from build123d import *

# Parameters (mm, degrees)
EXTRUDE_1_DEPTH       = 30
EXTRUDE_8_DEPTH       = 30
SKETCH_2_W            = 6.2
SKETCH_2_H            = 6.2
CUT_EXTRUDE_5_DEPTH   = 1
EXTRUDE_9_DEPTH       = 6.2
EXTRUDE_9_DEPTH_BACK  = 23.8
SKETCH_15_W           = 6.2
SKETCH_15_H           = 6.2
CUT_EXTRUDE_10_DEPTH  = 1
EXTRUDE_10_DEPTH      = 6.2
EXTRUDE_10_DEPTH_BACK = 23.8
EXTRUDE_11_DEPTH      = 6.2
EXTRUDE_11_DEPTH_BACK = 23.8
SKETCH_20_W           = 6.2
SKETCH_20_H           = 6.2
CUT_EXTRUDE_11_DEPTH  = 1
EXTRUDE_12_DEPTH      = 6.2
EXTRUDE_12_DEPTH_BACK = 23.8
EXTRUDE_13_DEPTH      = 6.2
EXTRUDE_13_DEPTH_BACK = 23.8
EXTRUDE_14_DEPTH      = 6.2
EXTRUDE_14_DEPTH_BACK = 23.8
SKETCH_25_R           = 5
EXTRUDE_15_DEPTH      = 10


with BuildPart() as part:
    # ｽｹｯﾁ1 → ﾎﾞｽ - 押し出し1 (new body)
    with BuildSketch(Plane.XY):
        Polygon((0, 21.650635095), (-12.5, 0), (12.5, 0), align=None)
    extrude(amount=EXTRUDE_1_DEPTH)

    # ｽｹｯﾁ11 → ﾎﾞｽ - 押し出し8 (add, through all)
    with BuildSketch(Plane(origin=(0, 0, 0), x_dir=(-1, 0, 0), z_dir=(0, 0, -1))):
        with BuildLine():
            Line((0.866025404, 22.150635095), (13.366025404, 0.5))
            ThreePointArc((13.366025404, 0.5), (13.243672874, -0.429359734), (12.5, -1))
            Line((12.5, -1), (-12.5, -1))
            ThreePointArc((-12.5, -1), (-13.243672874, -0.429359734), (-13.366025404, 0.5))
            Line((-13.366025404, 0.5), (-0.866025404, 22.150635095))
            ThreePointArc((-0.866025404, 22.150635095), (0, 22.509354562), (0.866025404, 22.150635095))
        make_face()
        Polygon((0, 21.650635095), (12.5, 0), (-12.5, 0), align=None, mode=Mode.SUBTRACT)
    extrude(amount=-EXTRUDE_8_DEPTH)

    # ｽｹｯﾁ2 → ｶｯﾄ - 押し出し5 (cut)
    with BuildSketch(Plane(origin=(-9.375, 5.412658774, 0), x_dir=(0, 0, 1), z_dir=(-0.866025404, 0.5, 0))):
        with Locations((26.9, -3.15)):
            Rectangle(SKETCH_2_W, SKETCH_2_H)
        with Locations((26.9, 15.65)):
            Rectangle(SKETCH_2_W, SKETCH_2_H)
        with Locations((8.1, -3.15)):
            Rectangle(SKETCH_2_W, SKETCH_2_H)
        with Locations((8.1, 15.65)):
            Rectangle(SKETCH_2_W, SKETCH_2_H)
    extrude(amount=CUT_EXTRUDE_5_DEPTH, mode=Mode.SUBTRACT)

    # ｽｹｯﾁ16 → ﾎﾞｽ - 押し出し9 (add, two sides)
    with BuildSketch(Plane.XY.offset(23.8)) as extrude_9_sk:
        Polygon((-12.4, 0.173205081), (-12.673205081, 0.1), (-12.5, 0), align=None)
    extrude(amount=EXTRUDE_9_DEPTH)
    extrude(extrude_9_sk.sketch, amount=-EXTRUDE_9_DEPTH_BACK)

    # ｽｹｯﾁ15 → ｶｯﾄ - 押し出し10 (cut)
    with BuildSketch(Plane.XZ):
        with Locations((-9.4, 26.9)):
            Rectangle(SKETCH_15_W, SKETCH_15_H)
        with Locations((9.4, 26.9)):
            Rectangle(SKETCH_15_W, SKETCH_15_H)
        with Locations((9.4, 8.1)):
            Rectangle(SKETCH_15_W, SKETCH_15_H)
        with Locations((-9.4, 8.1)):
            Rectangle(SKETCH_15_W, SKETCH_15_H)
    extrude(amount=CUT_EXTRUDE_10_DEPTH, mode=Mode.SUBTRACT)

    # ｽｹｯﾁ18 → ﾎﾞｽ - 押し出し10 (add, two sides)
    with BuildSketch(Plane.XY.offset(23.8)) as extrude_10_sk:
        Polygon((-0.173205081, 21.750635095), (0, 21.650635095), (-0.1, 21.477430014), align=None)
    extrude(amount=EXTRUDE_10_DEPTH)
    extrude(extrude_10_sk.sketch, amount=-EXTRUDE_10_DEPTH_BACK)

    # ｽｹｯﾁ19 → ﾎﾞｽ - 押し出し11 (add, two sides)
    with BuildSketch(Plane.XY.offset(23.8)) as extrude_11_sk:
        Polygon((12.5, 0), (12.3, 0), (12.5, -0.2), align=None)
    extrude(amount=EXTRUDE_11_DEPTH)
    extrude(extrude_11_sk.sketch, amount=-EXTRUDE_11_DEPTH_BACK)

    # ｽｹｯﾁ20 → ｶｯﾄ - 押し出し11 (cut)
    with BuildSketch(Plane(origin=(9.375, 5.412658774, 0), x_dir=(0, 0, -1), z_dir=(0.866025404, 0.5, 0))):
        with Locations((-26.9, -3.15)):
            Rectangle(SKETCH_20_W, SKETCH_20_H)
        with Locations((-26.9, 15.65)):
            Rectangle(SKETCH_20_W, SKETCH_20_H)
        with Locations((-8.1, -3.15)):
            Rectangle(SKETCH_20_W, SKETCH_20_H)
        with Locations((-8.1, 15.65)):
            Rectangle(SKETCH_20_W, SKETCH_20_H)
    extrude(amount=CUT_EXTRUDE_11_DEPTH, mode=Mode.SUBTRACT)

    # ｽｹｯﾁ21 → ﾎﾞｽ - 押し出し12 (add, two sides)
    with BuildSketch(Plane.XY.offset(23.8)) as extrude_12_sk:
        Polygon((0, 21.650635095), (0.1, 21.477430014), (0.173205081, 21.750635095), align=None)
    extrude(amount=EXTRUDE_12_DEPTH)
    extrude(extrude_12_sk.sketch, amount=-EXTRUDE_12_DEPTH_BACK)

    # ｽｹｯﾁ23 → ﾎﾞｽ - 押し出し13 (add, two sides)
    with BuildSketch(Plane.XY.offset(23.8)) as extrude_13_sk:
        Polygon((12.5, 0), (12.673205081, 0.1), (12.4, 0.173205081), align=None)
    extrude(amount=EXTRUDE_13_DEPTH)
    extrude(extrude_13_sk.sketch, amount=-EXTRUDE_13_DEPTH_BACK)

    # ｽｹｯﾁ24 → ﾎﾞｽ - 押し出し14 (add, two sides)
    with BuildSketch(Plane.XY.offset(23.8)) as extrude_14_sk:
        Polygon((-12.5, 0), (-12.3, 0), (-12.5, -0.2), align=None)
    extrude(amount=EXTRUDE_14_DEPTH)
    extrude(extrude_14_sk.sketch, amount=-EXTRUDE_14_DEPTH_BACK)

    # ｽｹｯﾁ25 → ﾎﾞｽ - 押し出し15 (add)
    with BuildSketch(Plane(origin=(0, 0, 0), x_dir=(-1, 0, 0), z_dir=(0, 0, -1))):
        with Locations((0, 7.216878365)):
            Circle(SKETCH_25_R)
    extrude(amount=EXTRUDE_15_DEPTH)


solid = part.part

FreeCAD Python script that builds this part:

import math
import FreeCAD as App
import Part
import Sketcher
from FreeCAD import Vector
Q = App.Units.Quantity


def add_polygon(sketch, points):
    """Adds a closed chain of lines whose ends are joined by coincident constraints."""
    first, n = sketch.GeometryCount, len(points)
    for a, b in zip(points, points[1:] + points[:1]):
        sketch.addGeometry(Part.LineSegment(App.Vector(*a, 0), App.Vector(*b, 0)), False)
    for i in range(n):
        sketch.addConstraint(Sketcher.Constraint("Coincident", first + i, 2, first + (i + 1) % n, 1))

doc = App.newDocument("Part")
body = doc.addObject("PartDesign::Body", "Body")

# Sketch on XY plane
sketch1 = body.newObject("Sketcher::SketchObject", "Sketch")
sketch1.AttachmentSupport = (doc.getObject("XY_Plane"), [""])
sketch1.MapMode = "FlatFace"
add_polygon(sketch1, [(0, 22), (-12, 0), (12, 0)])  # lines 0-2
sketch1.addConstraint([
    Sketcher.Constraint("Horizontal", 1),
    Sketcher.Constraint("Symmetric", 0, 2, 1, 2, -1, 1),
    Sketcher.Constraint("PointOnObject", 2, 2, -2),
    Sketcher.Constraint("DistanceX", 1, 1, 1, 2, Q("25 mm")),
    Sketcher.Constraint("Angle", 0, Q("-120 deg")),
])
pad1 = body.newObject("PartDesign::Pad", "Pad")
pad1.Profile = sketch1
pad1.Length = 30

# Sketch on XY plane
sketch2 = body.newObject("Sketcher::SketchObject", "Sketch001")
sketch2.AttachmentSupport = (doc.getObject("XY_Plane"), [""])
sketch2.MapMode = "FlatFace"
sketch2.addGeometry(Part.LineSegment(Vector(-13.4, 0.5, 0), Vector(-0.9, 22.2, 0)), False)  # 0
sketch2.addGeometry(Part.ArcOfCircle(Part.Circle(Vector(0, 21.3, 0), Vector(0, 0, 1), 1.2), math.radians(45), math.radians(135)), False)  # 1
sketch2.addGeometry(Part.LineSegment(Vector(0.9, 22.2, 0), Vector(13.4, 0.5, 0)), False)  # 2
sketch2.addGeometry(Part.ArcOfCircle(Part.Circle(Vector(12.2, 0.2, 0), Vector(0, 0, 1), 1.2), math.radians(-75), math.radians(15)), False)  # 3
sketch2.addGeometry(Part.LineSegment(Vector(12.5, -1, 0), Vector(-12.5, -1, 0)), False)  # 4
sketch2.addGeometry(Part.ArcOfCircle(Part.Circle(Vector(-12.2, 0.2, 0), Vector(0, 0, 1), 1.2), math.radians(165), math.radians(255)), False)  # 5
add_polygon(sketch2, [(0, 21.7), (-12.5, 0), (12.5, 0)])  # lines 6-8
sketch2.addConstraint([
    Sketcher.Constraint("Coincident", 0, 2, 1, 2),
    Sketcher.Constraint("Coincident", 1, 1, 2, 1),
    Sketcher.Constraint("Coincident", 2, 2, 3, 2),
    Sketcher.Constraint("Coincident", 3, 1, 4, 1),
    Sketcher.Constraint("Coincident", 4, 2, 5, 2),
    Sketcher.Constraint("Coincident", 5, 1, 0, 1),
    Sketcher.Constraint("Horizontal", 4),
    Sketcher.Constraint("Horizontal", 7),
    Sketcher.Constraint("Equal", 1, 3),
    Sketcher.Constraint("Equal", 3, 5),
    Sketcher.Constraint("Symmetric", 6, 2, 7, 2, -1, 1),
    Sketcher.Constraint("Symmetric", 3, 3, 5, 3, -2),
    Sketcher.Constraint("Symmetric", 0, 2, 1, 1, -2),
    Sketcher.Constraint("PointOnObject", 8, 2, -2),
    Sketcher.Constraint("Parallel", 0, 6),
    Sketcher.Constraint("Parallel", 2, 8),
    Sketcher.Constraint("Vertical", 4, 2, 6, 2),
    Sketcher.Constraint("Equal", 2, 6),
    Sketcher.Constraint("DistanceX", 4, 2, 4, 1, Q("25 mm")),
    Sketcher.Constraint("Angle", 0, Q("60 deg")),
    Sketcher.Constraint("DistanceY", 3, 1, -1, 1, Q("1 mm")),
    Sketcher.Constraint("DistanceY", -1, 1, 2, 2, Q("0.5 mm")),
    Sketcher.Constraint("Radius", 1, Q("1.224745 mm")),
    Sketcher.Constraint("DistanceY", -1, 1, 1, 3, Q("21.28461 mm")),
])
pad2 = body.newObject("PartDesign::Pad", "Pad001")
pad2.Profile = sketch2
pad2.Type = "UpToLast"

# Sketch on an angled plane
sketch3 = body.newObject("Sketcher::SketchObject", "Sketch002")
sketch3.Placement = App.Placement(Vector(-9.375, 5.412659, 0), App.Rotation(Vector(0, 0, 1), Vector(0.5, 0.866025404, 0), Vector(-0.866025404, 0.5, 0), "ZXY"))
add_polygon(sketch3, [(24, 0), (24, -6), (30, -6), (30, 0)])  # lines 0-3
add_polygon(sketch3, [(24, 19), (24, 13), (30, 13), (30, 19)])  # lines 4-7
add_polygon(sketch3, [(5, 0), (5, -6), (11, -6), (11, 0)])  # lines 8-11
add_polygon(sketch3, [(5, 19), (5, 13), (11, 13), (11, 19)])  # lines 12-15
sketch3.addConstraint([
    Sketcher.Constraint("Vertical", 0),
    Sketcher.Constraint("Horizontal", 1),
    Sketcher.Constraint("Vertical", 2),
    Sketcher.Constraint("Horizontal", 3),
    Sketcher.Constraint("Vertical", 4),
    Sketcher.Constraint("Horizontal", 5),
    Sketcher.Constraint("Vertical", 6),
    Sketcher.Constraint("Horizontal", 7),
    Sketcher.Constraint("Vertical", 8),
    Sketcher.Constraint("Horizontal", 9),
    Sketcher.Constraint("Vertical", 10),
    Sketcher.Constraint("Horizontal", 11),
    Sketcher.Constraint("Vertical", 12),
    Sketcher.Constraint("Horizontal", 13),
    Sketcher.Constraint("Vertical", 14),
    Sketcher.Constraint("Horizontal", 15),
    Sketcher.Constraint("Horizontal", 1, 2, 8, 2),
    Sketcher.Constraint("Horizontal", 3, 2, 10, 2),
    Sketcher.Constraint("Horizontal", 5, 2, 12, 2),
    Sketcher.Constraint("Horizontal", 7, 2, 14, 2),
    Sketcher.Constraint("Vertical", 3, 2, 4, 2),
    Sketcher.Constraint("Vertical", 2, 2, 5, 2),
    Sketcher.Constraint("Vertical", 11, 2, 12, 2),
    Sketcher.Constraint("Vertical", 10, 2, 13, 2),
    Sketcher.Constraint("Equal", 7, 9),
    Sketcher.Constraint("Equal", 15, 0),
    Sketcher.Constraint("Equal", 2, 4),
    Sketcher.Constraint("DistanceX", 1, 1, 1, 2, Q("6.2 mm")),
    Sketcher.Constraint("DistanceX", -1, 1, 1, 2, Q("30 mm")),
    Sketcher.Constraint("DistanceX", -1, 1, 8, 2, Q("5 mm")),
    Sketcher.Constraint("DistanceY", 1, 2, 6, 2, Q("25 mm")),
    Sketcher.Constraint("DistanceY", 0, 2, -1, 1, Q("6.25 mm")),
])
pocket1 = body.newObject("PartDesign::Pocket", "Pocket")
pocket1.Profile = sketch3
pocket1.Length = 1
pocket1.Reversed = True

# Sketch on XY plane
sketch4 = body.newObject("Sketcher::SketchObject", "Sketch003")
sketch4.AttachmentSupport = (doc.getObject("XY_Plane"), [""])
sketch4.MapMode = "FlatFace"
sketch4.AttachmentOffset = App.Placement(Vector(0, 0, 23.8), App.Rotation())
add_polygon(sketch4, [(-12.4, 0.17), (-12.67, 0.1), (-12.5, 0)])  # lines 0-2
sketch4.addConstraint([
    Sketcher.Constraint("PointOnObject", 1, 2, -1),
    Sketcher.Constraint("Perpendicular", 1, 2),
    Sketcher.Constraint("Equal", 1, 2),
    Sketcher.Constraint("Angle", 0, Q("-165 deg")),
    Sketcher.Constraint("Distance", 1, Q("0.2 mm")),
    Sketcher.Constraint("DistanceX", 1, 2, -1, 1, Q("12.5 mm")),
])
pad3 = body.newObject("PartDesign::Pad", "Pad002")
pad3.Profile = sketch4
pad3.Type = "TwoLengths"
pad3.Length = 6.2
pad3.Length2 = 23.8

# Sketch on XZ plane
sketch5 = body.newObject("Sketcher::SketchObject", "Sketch004")
sketch5.AttachmentSupport = (doc.getObject("XZ_Plane"), [""])
sketch5.MapMode = "FlatFace"
add_polygon(sketch5, [(-12, 30), (-12, 24), (-6, 24), (-6, 30)])  # lines 0-3
add_polygon(sketch5, [(6, 30), (6, 24), (12, 24), (12, 30)])  # lines 4-7
add_polygon(sketch5, [(6, 11), (6, 5), (12, 5), (12, 11)])  # lines 8-11
add_polygon(sketch5, [(-12, 11), (-12, 5), (-6, 5), (-6, 11)])  # lines 12-15
sketch5.addConstraint([
    Sketcher.Constraint("Vertical", 0),
    Sketcher.Constraint("Horizontal", 1),
    Sketcher.Constraint("Vertical", 2),
    Sketcher.Constraint("Horizontal", 3),
    Sketcher.Constraint("Vertical", 4),
    Sketcher.Constraint("Horizontal", 5),
    Sketcher.Constraint("Vertical", 6),
    Sketcher.Constraint("Horizontal", 7),
    Sketcher.Constraint("Vertical", 8),
    Sketcher.Constraint("Horizontal", 9),
    Sketcher.Constraint("Vertical", 10),
    Sketcher.Constraint("Horizontal", 11),
    Sketcher.Constraint("Vertical", 12),
    Sketcher.Constraint("Horizontal", 13),
    Sketcher.Constraint("Vertical", 14),
    Sketcher.Constraint("Horizontal", 15),
    Sketcher.Constraint("Symmetric", 1, 2, 4, 2, -2),
    Sketcher.Constraint("Symmetric", 3, 2, 6, 2, -2),
    Sketcher.Constraint("Symmetric", 9, 2, 12, 2, -2),
    Sketcher.Constraint("Symmetric", 11, 2, 14, 2, -2),
    Sketcher.Constraint("Vertical", 7, 2, 8, 2),
    Sketcher.Constraint("Vertical", 6, 2, 9, 2),
    Sketcher.Constraint("Equal", 15, 0),
    Sketcher.Constraint("Equal", 6, 8),
    Sketcher.Constraint("DistanceX", 1, 1, 1, 2, Q("6.2 mm")),
    Sketcher.Constraint("DistanceY", -1, 1, 2, 2, Q("30 mm")),
    Sketcher.Constraint("DistanceY", -1, 1, 8, 2, Q("5 mm")),
    Sketcher.Constraint("DistanceX", 0, 2, 5, 2, Q("25 mm")),
])
pocket2 = body.newObject("PartDesign::Pocket", "Pocket001")
pocket2.Profile = sketch5
pocket2.Length = 1
pocket2.Reversed = True

# Sketch on XY plane
sketch6 = body.newObject("Sketcher::SketchObject", "Sketch005")
sketch6.AttachmentSupport = (doc.getObject("XY_Plane"), [""])
sketch6.MapMode = "FlatFace"
sketch6.AttachmentOffset = App.Placement(Vector(0, 0, 23.8), App.Rotation())
add_polygon(sketch6, [(0, 21.65), (-0.17, 21.75), (-0.1, 21.48)])  # lines 0-2
sketch6.addConstraint([
    Sketcher.Constraint("PointOnObject", 2, 2, -2),
    Sketcher.Constraint("Perpendicular", 0, 2),
    Sketcher.Constraint("Equal", 0, 2),
    Sketcher.Constraint("Angle", 0, Q("150 deg")),
    Sketcher.Constraint("Distance", 0, Q("0.2 mm")),
    Sketcher.Constraint("DistanceY", -1, 1, 1, 2, Q("21.47743 mm")),
])
pad4 = body.newObject("PartDesign::Pad", "Pad003")
pad4.Profile = sketch6
pad4.Type = "TwoLengths"
pad4.Length = 6.2
pad4.Length2 = 23.8

# Sketch on XY plane
sketch7 = body.newObject("Sketcher::SketchObject", "Sketch006")
sketch7.AttachmentSupport = (doc.getObject("XY_Plane"), [""])
sketch7.MapMode = "FlatFace"
sketch7.AttachmentOffset = App.Placement(Vector(0, 0, 23.8), App.Rotation())
add_polygon(sketch7, [(12.5, 0), (12.3, 0), (12.5, -0.2)])  # lines 0-2
sketch7.addConstraint([
    Sketcher.Constraint("Horizontal", 0),
    Sketcher.Constraint("Vertical", 2),
    Sketcher.Constraint("PointOnObject", 0, 2, -1),
    Sketcher.Constraint("Equal", 0, 2),
    Sketcher.Constraint("DistanceX", 0, 2, 0, 1, Q("0.2 mm")),
    Sketcher.Constraint("DistanceX", -1, 1, 0, 2, Q("12.3 mm")),
])
pad5 = body.newObject("PartDesign::Pad", "Pad004")
pad5.Profile = sketch7
pad5.Type = "TwoLengths"
pad5.Length = 6.2
pad5.Length2 = 23.8

# Sketch on an angled plane
sketch8 = body.newObject("Sketcher::SketchObject", "Sketch007")
sketch8.Placement = App.Placement(Vector(9.375, 5.412659, 0), App.Rotation(Vector(0, 0, -1), Vector(-0.5, 0.866025404, 0), Vector(0.866025404, 0.5, 0), "ZXY"))
add_polygon(sketch8, [(-30, 0), (-30, -6), (-24, -6), (-24, 0)])  # lines 0-3
add_polygon(sketch8, [(-30, 19), (-30, 13), (-24, 13), (-24, 19)])  # lines 4-7
add_polygon(sketch8, [(-11, 0), (-11, -6), (-5, -6), (-5, 0)])  # lines 8-11
add_polygon(sketch8, [(-11, 19), (-11, 13), (-5, 13), (-5, 19)])  # lines 12-15
sketch8.addConstraint([
    Sketcher.Constraint("Vertical", 0),
    Sketcher.Constraint("Horizontal", 1),
    Sketcher.Constraint("Vertical", 2),
    Sketcher.Constraint("Horizontal", 3),
    Sketcher.Constraint("Vertical", 4),
    Sketcher.Constraint("Horizontal", 5),
    Sketcher.Constraint("Vertical", 6),
    Sketcher.Constraint("Horizontal", 7),
    Sketcher.Constraint("Vertical", 8),
    Sketcher.Constraint("Horizontal", 9),
    Sketcher.Constraint("Vertical", 10),
    Sketcher.Constraint("Horizontal", 11),
    Sketcher.Constraint("Vertical", 12),
    Sketcher.Constraint("Horizontal", 13),
    Sketcher.Constraint("Vertical", 14),
    Sketcher.Constraint("Horizontal", 15),
    Sketcher.Constraint("Horizontal", 1, 2, 8, 2),
    Sketcher.Constraint("Horizontal", 3, 2, 10, 2),
    Sketcher.Constraint("Horizontal", 5, 2, 12, 2),
    Sketcher.Constraint("Horizontal", 7, 2, 14, 2),
    Sketcher.Constraint("Vertical", 3, 2, 4, 2),
    Sketcher.Constraint("Vertical", 2, 2, 5, 2),
    Sketcher.Constraint("Vertical", 11, 2, 12, 2),
    Sketcher.Constraint("Vertical", 10, 2, 13, 2),
    Sketcher.Constraint("Equal", 7, 9),
    Sketcher.Constraint("Equal", 15, 0),
    Sketcher.Constraint("Equal", 2, 4),
    Sketcher.Constraint("DistanceX", 1, 1, 1, 2, Q("6.2 mm")),
    Sketcher.Constraint("DistanceX", 0, 2, -1, 1, Q("30 mm")),
    Sketcher.Constraint("DistanceX", 9, 2, -1, 1, Q("5 mm")),
    Sketcher.Constraint("DistanceY", 1, 2, 6, 2, Q("25 mm")),
    Sketcher.Constraint("DistanceY", 0, 2, -1, 1, Q("6.25 mm")),
])
pocket3 = body.newObject("PartDesign::Pocket", "Pocket002")
pocket3.Profile = sketch8
pocket3.Length = 1
pocket3.Reversed = True

# Sketch on XY plane
sketch9 = body.newObject("Sketcher::SketchObject", "Sketch008")
sketch9.AttachmentSupport = (doc.getObject("XY_Plane"), [""])
sketch9.MapMode = "FlatFace"
sketch9.AttachmentOffset = App.Placement(Vector(0, 0, 23.8), App.Rotation())
add_polygon(sketch9, [(0, 21.65), (0.1, 21.48), (0.17, 21.75)])  # lines 0-2
sketch9.addConstraint([
    Sketcher.Constraint("PointOnObject", 2, 2, -2),
    Sketcher.Constraint("Perpendicular", 0, 2),
    Sketcher.Constraint("Equal", 0, 2),
    Sketcher.Constraint("Angle", 0, Q("-60 deg")),
    Sketcher.Constraint("Distance", 0, Q("0.2 mm")),
    Sketcher.Constraint("DistanceY", -1, 1, 0, 2, Q("21.47743 mm")),
])
pad6 = body.newObject("PartDesign::Pad", "Pad005")
pad6.Profile = sketch9
pad6.Type = "TwoLengths"
pad6.Length = 6.2
pad6.Length2 = 23.8

# Sketch on XY plane
sketch10 = body.newObject("Sketcher::SketchObject", "Sketch009")
sketch10.AttachmentSupport = (doc.getObject("XY_Plane"), [""])
sketch10.MapMode = "FlatFace"
sketch10.AttachmentOffset = App.Placement(Vector(0, 0, 23.8), App.Rotation())
add_polygon(sketch10, [(12.5, 0), (12.67, 0.1), (12.4, 0.17)])  # lines 0-2
sketch10.addConstraint([
    Sketcher.Constraint("PointOnObject", 2, 2, -1),
    Sketcher.Constraint("Perpendicular", 0, 2),
    Sketcher.Constraint("Equal", 0, 2),
    Sketcher.Constraint("Angle", 0, Q("30 deg")),
    Sketcher.Constraint("Distance", 0, Q("0.2 mm")),
    Sketcher.Constraint("DistanceX", -1, 1, 1, 2, Q("12.4 mm")),
])
pad7 = body.newObject("PartDesign::Pad", "Pad006")
pad7.Profile = sketch10
pad7.Type = "TwoLengths"
pad7.Length = 6.2
pad7.Length2 = 23.8

# Sketch on XY plane
sketch11 = body.newObject("Sketcher::SketchObject", "Sketch010")
sketch11.AttachmentSupport = (doc.getObject("XY_Plane"), [""])
sketch11.MapMode = "FlatFace"
sketch11.AttachmentOffset = App.Placement(Vector(0, 0, 23.8), App.Rotation())
add_polygon(sketch11, [(-12.3, 0), (-12.5, 0), (-12.5, -0.2)])  # lines 0-2
sketch11.addConstraint([
    Sketcher.Constraint("Horizontal", 0),
    Sketcher.Constraint("Vertical", 1),
    Sketcher.Constraint("PointOnObject", 0, 2, -1),
    Sketcher.Constraint("Equal", 0, 1),
    Sketcher.Constraint("DistanceX", 0, 2, 0, 1, Q("0.2 mm")),
    Sketcher.Constraint("DistanceX", 0, 2, -1, 1, Q("12.5 mm")),
])
pad8 = body.newObject("PartDesign::Pad", "Pad007")
pad8.Profile = sketch11
pad8.Type = "TwoLengths"
pad8.Length = 6.2
pad8.Length2 = 23.8

# Sketch on XY plane
sketch12 = body.newObject("Sketcher::SketchObject", "Sketch011")
sketch12.AttachmentSupport = (doc.getObject("XY_Plane"), [""])
sketch12.MapMode = "FlatFace"
sketch12.addGeometry(Part.Circle(Vector(0, 7, 0), Vector(0, 0, 1), 5), False)
sketch12.addConstraint([
    Sketcher.Constraint("PointOnObject", 0, 3, -2),
    Sketcher.Constraint("Diameter", 0, Q("10 mm")),
    Sketcher.Constraint("DistanceY", -1, 1, 0, 3, Q("7.216878 mm")),
])
pad9 = body.newObject("PartDesign::Pad", "Pad008")
pad9.Profile = sketch12
pad9.Length = 10
pad9.Reversed = True

doc.recompute()
